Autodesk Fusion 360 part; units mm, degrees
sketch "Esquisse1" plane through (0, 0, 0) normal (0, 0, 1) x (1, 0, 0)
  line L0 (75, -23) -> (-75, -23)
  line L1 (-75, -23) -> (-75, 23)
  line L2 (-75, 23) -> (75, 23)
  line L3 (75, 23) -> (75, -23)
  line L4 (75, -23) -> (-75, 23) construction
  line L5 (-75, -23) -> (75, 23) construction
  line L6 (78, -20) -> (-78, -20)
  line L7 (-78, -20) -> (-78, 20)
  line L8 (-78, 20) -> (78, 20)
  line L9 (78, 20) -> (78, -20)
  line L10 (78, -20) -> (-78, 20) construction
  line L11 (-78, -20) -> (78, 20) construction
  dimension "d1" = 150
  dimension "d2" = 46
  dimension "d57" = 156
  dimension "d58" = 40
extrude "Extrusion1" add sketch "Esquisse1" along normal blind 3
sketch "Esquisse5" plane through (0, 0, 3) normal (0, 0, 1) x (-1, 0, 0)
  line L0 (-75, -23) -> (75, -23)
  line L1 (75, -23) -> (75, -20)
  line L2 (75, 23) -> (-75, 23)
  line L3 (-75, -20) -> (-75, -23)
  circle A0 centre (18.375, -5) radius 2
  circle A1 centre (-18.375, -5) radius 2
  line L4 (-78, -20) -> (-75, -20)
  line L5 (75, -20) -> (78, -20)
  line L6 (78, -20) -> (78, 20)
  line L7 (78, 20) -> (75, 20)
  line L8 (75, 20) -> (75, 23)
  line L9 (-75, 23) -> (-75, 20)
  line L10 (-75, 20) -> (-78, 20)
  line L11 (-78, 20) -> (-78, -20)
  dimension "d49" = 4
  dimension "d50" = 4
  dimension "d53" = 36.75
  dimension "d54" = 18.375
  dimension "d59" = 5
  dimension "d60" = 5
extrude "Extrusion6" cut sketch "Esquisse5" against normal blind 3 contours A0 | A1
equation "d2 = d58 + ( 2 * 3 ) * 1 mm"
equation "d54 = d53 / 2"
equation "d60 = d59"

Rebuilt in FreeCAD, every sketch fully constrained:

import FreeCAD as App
import Part
import Sketcher


def add_polygon(sketch, points):
    """Adds a closed chain of lines whose ends are joined by coincident constraints."""
    first, n = sketch.GeometryCount, len(points)
    for a, b in zip(points, points[1:] + points[:1]):
        sketch.addGeometry(Part.LineSegment(App.Vector(*a, 0), App.Vector(*b, 0)), False)
    for i in range(n):
        sketch.addConstraint(Sketcher.Constraint("Coincident", first + i, 2, first + (i + 1) % n, 1))

doc = App.newDocument("Part")
params = doc.addObject("Spreadsheet::Sheet", "Params")
for row, (alias, value) in enumerate([
    ("sketch1_width", "150 mm"),
    ("sketch1_height", "40 mm"),
    ("pad1_length", "3 mm"),
    ("sketch2_diameter", "4 mm"),
    ("pocket1_length", "3 mm"),
], start=1):
    params.set(f"A{row}", alias)
    params.set(f"B{row}", "=" + value)
    params.setAlias(f"B{row}", alias)

body = doc.addObject("PartDesign::Body", "Body")

# Sketch on XY plane
sketch1 = doc.addObject("Sketcher::SketchObject", "Sketch")
body.addObject(sketch1)
sketch1.AttachmentSupport = (doc.XY_Plane, [""])
sketch1.MapMode = "FlatFace"
add_polygon(sketch1, [(-75, -23), (75, -23), (75, -20), (78, -20), (78, 20), (75, 20), (75, 23), (-75, 23), (-75, 20), (-78, 20), (-78, -20), (-75, -20)])  # lines 0-11
sketch1.addConstraint([
    Sketcher.Constraint("Horizontal", 0),
    Sketcher.Constraint("Vertical", 1),
    Sketcher.Constraint("Horizontal", 2),
    Sketcher.Constraint("Vertical", 3),
    Sketcher.Constraint("Horizontal", 4),
    Sketcher.Constraint("Vertical", 5),
    Sketcher.Constraint("Horizontal", 6),
    Sketcher.Constraint("Vertical", 7),
    Sketcher.Constraint("Horizontal", 8),
    Sketcher.Constraint("Vertical", 9),
    Sketcher.Constraint("Horizontal", 10),
    Sketcher.Constraint("Vertical", 11),
    Sketcher.Constraint("Symmetric", 0, 2, 6, 2, -1, 1),
    Sketcher.Constraint("Symmetric", 2, 2, 8, 2, -1, 1),
    Sketcher.Constraint("Symmetric", 4, 2, 10, 2, -1, 1),
    Sketcher.Constraint("Symmetric", 4, 2, 7, 2, -2),
    Sketcher.Constraint("Equal", 10, 1),
    Sketcher.Constraint("DistanceX", 0, 1, 0, 2, 150.0),
    Sketcher.Constraint("DistanceY", 3, 1, 3, 2, 40.0),
    Sketcher.Constraint("DistanceY", 0, 2, 5, 2, 46.0),
])
sketch1.setExpression("Constraints[29]", "Params.sketch1_width")
sketch1.setExpression("Constraints[30]", "Params.sketch1_height")
pad1 = doc.addObject("PartDesign::Pad", "Pad")
body.addObject(pad1)
pad1.Profile = sketch1
pad1.setExpression("Length", "Params.pad1_length")

# Sketch on XY plane
sketch2 = doc.addObject("Sketcher::SketchObject", "Sketch001")
body.addObject(sketch2)
sketch2.AttachmentSupport = (doc.XY_Plane, [""])
sketch2.MapMode = "FlatFace"
sketch2.AttachmentOffset = App.Placement(App.Vector(0, 0, 3), App.Rotation())
sketch2.addGeometry([
    Part.Circle(App.Vector(-18.4, 5, 0), App.Vector(0, 0, 1), 2),
    Part.Circle(App.Vector(18.4, 5, 0), App.Vector(0, 0, 1), 2),
], False)
sketch2.addConstraint([
    Sketcher.Constraint("Equal", 0, 1),
    Sketcher.Constraint("Symmetric", 0, 3, 1, 3, -2),
    Sketcher.Constraint("Diameter", 0, 4.0),
    Sketcher.Constraint("DistanceY", -1, 1, 0, 3, 5.0),
    Sketcher.Constraint("DistanceX", 0, 3, 1, 3, 36.75),
])
sketch2.setExpression("Constraints[2]", "Params.sketch2_diameter")
pocket1 = doc.addObject("PartDesign::Pocket", "Pocket")
body.addObject(pocket1)
pocket1.Profile = sketch2
pocket1.setExpression("Length", "Params.pocket1_length")

doc.recompute()
